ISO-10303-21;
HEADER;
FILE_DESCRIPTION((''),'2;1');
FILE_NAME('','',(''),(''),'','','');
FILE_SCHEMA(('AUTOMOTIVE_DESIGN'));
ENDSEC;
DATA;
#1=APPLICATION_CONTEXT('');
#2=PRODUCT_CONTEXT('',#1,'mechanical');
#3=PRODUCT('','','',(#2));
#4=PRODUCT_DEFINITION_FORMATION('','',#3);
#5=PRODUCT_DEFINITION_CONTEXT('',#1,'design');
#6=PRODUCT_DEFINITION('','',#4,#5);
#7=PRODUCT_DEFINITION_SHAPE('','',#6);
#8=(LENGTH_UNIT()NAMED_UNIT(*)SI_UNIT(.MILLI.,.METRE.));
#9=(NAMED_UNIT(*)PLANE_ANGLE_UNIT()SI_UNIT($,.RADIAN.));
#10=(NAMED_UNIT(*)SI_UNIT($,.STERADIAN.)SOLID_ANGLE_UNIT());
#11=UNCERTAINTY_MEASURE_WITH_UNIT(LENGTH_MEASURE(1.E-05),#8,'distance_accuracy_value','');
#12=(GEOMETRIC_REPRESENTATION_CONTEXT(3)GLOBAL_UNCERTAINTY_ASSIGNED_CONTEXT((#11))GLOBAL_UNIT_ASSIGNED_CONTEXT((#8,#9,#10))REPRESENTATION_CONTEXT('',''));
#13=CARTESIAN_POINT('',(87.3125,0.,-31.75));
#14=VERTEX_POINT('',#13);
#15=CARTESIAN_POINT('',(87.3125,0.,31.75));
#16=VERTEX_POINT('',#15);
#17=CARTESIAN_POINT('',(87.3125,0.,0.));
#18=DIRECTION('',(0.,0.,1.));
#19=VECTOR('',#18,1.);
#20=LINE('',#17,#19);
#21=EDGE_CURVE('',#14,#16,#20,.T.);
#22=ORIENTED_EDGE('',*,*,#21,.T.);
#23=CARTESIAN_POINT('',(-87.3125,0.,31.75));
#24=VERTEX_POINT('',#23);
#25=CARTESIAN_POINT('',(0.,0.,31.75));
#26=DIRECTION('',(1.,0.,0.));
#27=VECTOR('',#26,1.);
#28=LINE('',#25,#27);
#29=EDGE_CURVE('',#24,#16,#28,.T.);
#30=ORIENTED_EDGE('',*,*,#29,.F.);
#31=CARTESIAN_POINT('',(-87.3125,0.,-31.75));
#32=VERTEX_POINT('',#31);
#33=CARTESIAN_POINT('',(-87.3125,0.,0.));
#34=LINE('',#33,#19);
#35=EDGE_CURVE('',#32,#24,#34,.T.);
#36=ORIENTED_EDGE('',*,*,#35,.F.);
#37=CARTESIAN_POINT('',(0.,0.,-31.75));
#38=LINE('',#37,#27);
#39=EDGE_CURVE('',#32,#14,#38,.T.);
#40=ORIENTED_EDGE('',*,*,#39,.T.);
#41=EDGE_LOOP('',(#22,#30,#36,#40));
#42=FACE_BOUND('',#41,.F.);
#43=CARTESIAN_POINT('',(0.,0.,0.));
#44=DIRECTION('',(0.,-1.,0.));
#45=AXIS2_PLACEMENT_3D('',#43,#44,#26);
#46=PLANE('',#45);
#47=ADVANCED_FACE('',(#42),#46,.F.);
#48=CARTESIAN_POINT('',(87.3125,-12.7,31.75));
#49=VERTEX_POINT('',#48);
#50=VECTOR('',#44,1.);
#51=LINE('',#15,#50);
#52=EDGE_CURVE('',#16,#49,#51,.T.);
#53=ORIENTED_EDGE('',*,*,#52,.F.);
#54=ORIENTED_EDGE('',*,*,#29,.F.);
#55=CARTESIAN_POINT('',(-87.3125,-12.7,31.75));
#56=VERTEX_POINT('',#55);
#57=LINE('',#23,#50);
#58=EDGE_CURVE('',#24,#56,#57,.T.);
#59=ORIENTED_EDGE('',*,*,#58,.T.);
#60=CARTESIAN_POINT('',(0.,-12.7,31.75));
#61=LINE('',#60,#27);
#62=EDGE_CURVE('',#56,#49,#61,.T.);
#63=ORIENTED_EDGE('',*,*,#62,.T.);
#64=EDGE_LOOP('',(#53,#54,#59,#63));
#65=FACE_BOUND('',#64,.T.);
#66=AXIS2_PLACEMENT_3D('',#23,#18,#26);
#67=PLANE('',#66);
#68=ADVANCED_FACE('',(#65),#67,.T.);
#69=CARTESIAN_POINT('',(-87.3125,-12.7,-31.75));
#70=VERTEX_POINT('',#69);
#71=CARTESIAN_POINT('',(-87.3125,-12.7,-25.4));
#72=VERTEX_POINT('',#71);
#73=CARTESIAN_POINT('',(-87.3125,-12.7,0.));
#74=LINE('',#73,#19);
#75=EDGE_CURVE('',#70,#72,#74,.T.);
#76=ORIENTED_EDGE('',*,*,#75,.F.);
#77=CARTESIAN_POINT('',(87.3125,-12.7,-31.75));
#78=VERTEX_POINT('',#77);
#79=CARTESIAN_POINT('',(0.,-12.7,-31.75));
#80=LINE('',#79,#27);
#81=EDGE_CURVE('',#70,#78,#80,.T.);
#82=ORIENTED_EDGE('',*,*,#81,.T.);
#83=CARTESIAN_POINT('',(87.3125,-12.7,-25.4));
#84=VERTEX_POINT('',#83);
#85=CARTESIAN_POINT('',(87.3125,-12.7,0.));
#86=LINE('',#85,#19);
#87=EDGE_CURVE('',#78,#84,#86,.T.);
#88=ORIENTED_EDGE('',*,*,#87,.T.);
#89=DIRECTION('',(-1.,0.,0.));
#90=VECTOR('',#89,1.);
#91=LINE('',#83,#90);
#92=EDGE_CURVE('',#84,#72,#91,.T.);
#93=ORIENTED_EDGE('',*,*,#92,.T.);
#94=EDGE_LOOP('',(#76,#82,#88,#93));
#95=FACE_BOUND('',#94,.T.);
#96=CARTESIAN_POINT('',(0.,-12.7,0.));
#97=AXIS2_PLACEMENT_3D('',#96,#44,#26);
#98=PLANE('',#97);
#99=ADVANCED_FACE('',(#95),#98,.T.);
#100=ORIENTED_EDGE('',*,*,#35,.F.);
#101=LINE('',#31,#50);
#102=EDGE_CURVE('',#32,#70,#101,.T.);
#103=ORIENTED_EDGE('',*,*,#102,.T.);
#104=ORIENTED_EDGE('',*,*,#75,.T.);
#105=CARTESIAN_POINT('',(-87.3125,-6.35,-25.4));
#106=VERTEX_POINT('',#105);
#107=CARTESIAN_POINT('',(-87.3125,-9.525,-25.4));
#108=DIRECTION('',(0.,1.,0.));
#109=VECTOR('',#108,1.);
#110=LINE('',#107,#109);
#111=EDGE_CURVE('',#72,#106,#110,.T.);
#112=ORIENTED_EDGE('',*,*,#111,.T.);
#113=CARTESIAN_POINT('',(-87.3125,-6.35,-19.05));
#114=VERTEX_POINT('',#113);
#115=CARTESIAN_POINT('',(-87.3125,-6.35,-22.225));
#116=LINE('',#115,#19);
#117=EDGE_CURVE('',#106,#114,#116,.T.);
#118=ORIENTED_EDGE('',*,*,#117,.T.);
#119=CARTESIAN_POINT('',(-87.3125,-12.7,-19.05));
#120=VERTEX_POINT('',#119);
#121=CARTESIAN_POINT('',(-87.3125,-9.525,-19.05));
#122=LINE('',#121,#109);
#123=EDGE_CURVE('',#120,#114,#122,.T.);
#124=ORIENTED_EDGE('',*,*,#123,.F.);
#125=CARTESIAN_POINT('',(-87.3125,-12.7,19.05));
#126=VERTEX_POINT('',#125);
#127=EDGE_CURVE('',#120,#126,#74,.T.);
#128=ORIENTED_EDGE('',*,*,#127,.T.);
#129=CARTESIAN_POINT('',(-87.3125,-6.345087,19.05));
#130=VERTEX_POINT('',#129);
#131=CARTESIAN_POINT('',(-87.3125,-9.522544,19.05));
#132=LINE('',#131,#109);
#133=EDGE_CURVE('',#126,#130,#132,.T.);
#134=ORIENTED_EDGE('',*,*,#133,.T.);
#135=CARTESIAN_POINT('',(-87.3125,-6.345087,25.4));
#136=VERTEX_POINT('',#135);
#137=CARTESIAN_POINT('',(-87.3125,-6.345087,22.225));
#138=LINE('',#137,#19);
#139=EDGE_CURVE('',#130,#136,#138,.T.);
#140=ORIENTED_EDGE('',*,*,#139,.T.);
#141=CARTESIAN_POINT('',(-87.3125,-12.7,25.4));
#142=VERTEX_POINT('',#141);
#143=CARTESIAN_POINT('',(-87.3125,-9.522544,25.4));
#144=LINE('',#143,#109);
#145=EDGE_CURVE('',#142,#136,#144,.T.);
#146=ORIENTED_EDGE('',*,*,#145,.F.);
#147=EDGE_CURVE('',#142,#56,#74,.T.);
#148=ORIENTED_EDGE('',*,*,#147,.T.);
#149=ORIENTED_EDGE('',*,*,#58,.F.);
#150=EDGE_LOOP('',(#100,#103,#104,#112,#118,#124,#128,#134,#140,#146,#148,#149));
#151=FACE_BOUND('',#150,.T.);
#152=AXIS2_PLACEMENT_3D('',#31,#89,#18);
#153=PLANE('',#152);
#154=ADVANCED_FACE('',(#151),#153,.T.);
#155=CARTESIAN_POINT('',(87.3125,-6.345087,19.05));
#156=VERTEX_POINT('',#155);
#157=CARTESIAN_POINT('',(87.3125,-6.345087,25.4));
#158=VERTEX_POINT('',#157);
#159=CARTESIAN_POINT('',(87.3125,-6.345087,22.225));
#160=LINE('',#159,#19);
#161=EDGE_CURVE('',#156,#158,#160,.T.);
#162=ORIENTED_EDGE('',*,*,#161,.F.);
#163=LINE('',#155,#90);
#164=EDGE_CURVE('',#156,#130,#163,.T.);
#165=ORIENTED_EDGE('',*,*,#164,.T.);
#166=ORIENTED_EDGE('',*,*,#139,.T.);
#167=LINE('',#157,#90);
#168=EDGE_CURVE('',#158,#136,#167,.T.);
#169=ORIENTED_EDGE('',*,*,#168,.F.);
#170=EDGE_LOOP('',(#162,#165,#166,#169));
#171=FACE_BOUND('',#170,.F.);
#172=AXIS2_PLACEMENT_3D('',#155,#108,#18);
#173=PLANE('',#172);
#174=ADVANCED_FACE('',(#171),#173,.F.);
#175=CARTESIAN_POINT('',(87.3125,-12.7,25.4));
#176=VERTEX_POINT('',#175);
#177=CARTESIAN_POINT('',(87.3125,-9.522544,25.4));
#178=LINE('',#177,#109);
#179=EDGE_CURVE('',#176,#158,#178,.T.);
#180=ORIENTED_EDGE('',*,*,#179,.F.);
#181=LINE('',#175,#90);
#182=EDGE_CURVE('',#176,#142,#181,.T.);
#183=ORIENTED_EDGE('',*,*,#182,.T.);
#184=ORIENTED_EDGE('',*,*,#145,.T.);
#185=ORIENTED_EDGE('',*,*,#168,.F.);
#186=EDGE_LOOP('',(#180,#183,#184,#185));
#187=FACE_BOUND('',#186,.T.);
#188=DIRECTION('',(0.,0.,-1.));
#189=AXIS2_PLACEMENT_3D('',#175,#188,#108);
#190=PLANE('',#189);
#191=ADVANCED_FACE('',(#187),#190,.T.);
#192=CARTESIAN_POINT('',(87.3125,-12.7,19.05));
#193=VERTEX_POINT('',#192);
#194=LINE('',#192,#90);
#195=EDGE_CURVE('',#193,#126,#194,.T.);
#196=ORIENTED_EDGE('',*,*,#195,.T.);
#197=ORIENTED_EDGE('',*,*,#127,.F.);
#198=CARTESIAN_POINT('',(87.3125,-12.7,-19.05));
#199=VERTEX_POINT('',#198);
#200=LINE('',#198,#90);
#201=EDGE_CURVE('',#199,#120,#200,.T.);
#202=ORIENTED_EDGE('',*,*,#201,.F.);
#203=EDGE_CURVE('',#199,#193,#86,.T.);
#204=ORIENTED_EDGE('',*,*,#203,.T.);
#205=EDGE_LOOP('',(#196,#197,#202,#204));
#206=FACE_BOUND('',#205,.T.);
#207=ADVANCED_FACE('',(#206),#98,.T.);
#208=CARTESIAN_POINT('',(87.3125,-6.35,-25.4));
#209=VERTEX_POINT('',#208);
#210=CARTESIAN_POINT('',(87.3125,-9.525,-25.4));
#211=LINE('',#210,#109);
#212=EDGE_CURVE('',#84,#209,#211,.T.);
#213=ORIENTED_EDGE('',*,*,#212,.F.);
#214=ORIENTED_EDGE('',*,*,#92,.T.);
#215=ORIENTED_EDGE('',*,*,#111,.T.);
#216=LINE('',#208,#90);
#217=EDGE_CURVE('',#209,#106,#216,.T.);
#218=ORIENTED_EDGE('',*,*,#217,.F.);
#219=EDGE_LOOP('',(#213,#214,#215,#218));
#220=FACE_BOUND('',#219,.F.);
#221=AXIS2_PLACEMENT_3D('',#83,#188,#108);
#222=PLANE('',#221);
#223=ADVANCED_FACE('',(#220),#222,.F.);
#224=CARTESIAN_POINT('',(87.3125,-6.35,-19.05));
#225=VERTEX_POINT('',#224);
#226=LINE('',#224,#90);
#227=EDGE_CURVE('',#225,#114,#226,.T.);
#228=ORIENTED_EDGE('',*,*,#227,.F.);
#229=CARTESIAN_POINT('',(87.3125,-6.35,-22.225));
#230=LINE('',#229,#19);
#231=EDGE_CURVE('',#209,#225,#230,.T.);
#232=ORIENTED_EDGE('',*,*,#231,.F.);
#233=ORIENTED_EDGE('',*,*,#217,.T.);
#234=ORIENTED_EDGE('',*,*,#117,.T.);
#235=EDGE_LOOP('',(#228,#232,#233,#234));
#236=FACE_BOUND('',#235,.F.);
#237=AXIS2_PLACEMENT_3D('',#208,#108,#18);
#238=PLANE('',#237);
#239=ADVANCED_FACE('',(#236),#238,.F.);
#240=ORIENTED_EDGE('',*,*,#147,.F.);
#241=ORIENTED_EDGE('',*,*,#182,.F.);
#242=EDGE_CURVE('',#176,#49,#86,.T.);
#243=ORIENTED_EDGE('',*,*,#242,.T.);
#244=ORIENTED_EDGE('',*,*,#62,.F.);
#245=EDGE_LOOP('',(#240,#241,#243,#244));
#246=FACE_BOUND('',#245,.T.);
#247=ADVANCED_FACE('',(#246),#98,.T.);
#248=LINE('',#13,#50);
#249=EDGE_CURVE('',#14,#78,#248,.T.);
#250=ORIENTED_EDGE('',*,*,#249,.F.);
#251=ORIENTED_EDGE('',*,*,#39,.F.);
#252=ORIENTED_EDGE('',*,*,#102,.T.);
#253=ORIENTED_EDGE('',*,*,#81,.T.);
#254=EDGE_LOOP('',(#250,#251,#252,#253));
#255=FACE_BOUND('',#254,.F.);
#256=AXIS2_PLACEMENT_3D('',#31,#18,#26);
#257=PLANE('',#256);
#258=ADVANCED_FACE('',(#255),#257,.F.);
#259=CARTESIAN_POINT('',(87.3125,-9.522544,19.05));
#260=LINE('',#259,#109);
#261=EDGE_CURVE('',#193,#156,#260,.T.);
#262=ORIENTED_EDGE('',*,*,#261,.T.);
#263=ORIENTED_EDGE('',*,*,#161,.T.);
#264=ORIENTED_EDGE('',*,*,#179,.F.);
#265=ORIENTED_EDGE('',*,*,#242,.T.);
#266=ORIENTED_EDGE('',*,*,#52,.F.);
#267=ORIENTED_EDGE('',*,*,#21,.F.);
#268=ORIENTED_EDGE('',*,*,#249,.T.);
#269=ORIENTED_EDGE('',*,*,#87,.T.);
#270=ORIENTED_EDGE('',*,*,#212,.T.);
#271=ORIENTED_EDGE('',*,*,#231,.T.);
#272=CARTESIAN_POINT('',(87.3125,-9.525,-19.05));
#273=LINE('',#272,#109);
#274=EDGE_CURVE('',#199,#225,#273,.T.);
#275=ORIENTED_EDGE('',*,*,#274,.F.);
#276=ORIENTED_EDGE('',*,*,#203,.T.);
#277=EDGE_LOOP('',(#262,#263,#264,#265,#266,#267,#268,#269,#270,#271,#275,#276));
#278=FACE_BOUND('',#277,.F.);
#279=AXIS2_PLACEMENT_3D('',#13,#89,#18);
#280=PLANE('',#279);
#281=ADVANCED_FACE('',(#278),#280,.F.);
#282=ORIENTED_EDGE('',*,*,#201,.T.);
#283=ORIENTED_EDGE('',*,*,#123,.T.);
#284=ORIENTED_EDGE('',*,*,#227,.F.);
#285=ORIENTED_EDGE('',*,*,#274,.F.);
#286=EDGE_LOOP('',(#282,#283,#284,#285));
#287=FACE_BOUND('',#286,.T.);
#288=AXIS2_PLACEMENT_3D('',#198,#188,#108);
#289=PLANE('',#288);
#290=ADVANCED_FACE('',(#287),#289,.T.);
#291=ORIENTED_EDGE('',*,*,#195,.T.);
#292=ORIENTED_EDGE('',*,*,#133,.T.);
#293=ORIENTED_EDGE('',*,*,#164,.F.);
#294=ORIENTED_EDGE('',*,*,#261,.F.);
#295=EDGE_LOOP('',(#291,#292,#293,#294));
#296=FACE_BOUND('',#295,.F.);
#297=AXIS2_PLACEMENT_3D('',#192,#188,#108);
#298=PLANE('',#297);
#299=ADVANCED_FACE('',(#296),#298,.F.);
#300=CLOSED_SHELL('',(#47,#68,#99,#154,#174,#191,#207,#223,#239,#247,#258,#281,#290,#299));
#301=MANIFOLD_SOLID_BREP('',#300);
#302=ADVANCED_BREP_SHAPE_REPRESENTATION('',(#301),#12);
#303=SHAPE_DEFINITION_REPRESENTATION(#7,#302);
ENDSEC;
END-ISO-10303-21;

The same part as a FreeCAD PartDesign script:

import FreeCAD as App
import Part
import Sketcher
from FreeCAD import Vector
Q = App.Units.Quantity


def add_polygon(sketch, points):
    """Adds a closed chain of lines whose ends are joined by coincident constraints."""
    first, n = sketch.GeometryCount, len(points)
    for a, b in zip(points, points[1:] + points[:1]):
        sketch.addGeometry(Part.LineSegment(App.Vector(*a, 0), App.Vector(*b, 0)), False)
    for i in range(n):
        sketch.addConstraint(Sketcher.Constraint("Coincident", first + i, 2, first + (i + 1) % n, 1))

doc = App.newDocument("Part")
body = doc.addObject("PartDesign::Body", "Body")

# Sketch on XZ plane
sketch1 = body.newObject("Sketcher::SketchObject", "Sketch")
sketch1.AttachmentSupport = (doc.getObject("XZ_Plane"), [""])
sketch1.MapMode = "FlatFace"
add_polygon(sketch1, [(-87.3125, 31.75), (-87.3125, -31.75), (87.3125, -31.75), (87.3125, 31.75)])  # lines 0-3
sketch1.addConstraint(Sketcher.Constraint("Vertical", 0))
sketch1.addConstraint(Sketcher.Constraint("Horizontal", 1))
sketch1.addConstraint(Sketcher.Constraint("Vertical", 2))
sketch1.addConstraint(Sketcher.Constraint("Horizontal", 3))
sketch1.addConstraint(Sketcher.Constraint("Symmetric", 0, 2, 2, 2, -1, 1))
sketch1.addConstraint(Sketcher.Constraint("DistanceY", 0, 2, 0, 1, Q("2.5 in")))
sketch1.addConstraint(Sketcher.Constraint("DistanceX", 1, 1, 1, 2, Q("6.875 in")))
pad1 = body.newObject("PartDesign::Pad", "Pad")
pad1.Profile = sketch1
pad1.Length = Q("0.5 in")

# Sketch on YZ plane
sketch2 = body.newObject("Sketcher::SketchObject", "Sketch001")
sketch2.AttachmentSupport = (doc.getObject("YZ_Plane"), [""])
sketch2.MapMode = "FlatFace"
sketch2.AttachmentOffset = App.Placement(Vector(0, 0, 3.4375 * 25.4), App.Rotation())
add_polygon(sketch2, [(-12.7, 25.4), (-12.7, 19.05), (-6.345087, 19.05), (-6.345087, 25.4)])  # lines 0-3
add_polygon(sketch2, [(-12.7, -19.05), (-12.7, -25.4), (-6.35, -25.4), (-6.35, -19.05)])  # lines 4-7
sketch2.addConstraint(Sketcher.Constraint("Vertical", 0))
sketch2.addConstraint(Sketcher.Constraint("Horizontal", 1))
sketch2.addConstraint(Sketcher.Constraint("Vertical", 2))
sketch2.addConstraint(Sketcher.Constraint("Horizontal", 3))
sketch2.addConstraint(Sketcher.Constraint("Vertical", 4))
sketch2.addConstraint(Sketcher.Constraint("Horizontal", 5))
sketch2.addConstraint(Sketcher.Constraint("Vertical", 6))
sketch2.addConstraint(Sketcher.Constraint("Horizontal", 7))
sketch2.addConstraint(Sketcher.Constraint("Symmetric", 3, 2, 4, 2, -1))
sketch2.addConstraint(Sketcher.Constraint("Equal", 7, 0))
sketch2.addConstraint(Sketcher.Constraint("Equal", 2, 4))
sketch2.addConstraint(Sketcher.Constraint("DistanceY", -1, 1, 2, 2, Q("1 in")))
sketch2.addConstraint(Sketcher.Constraint("DistanceX", 5, 1, 5, 2, Q("0.25 in")))
sketch2.addConstraint(Sketcher.Constraint("DistanceX", 0, 2, -1, 1, Q("0.5 in")))
sketch2.addConstraint(Sketcher.Constraint("DistanceX", 1, 1, 1, 2, 6.354913))
pocket1 = body.newObject("PartDesign::Pocket", "Pocket")
pocket1.Profile = sketch2
pocket1.Type = "ThroughAll"

doc.recompute()
